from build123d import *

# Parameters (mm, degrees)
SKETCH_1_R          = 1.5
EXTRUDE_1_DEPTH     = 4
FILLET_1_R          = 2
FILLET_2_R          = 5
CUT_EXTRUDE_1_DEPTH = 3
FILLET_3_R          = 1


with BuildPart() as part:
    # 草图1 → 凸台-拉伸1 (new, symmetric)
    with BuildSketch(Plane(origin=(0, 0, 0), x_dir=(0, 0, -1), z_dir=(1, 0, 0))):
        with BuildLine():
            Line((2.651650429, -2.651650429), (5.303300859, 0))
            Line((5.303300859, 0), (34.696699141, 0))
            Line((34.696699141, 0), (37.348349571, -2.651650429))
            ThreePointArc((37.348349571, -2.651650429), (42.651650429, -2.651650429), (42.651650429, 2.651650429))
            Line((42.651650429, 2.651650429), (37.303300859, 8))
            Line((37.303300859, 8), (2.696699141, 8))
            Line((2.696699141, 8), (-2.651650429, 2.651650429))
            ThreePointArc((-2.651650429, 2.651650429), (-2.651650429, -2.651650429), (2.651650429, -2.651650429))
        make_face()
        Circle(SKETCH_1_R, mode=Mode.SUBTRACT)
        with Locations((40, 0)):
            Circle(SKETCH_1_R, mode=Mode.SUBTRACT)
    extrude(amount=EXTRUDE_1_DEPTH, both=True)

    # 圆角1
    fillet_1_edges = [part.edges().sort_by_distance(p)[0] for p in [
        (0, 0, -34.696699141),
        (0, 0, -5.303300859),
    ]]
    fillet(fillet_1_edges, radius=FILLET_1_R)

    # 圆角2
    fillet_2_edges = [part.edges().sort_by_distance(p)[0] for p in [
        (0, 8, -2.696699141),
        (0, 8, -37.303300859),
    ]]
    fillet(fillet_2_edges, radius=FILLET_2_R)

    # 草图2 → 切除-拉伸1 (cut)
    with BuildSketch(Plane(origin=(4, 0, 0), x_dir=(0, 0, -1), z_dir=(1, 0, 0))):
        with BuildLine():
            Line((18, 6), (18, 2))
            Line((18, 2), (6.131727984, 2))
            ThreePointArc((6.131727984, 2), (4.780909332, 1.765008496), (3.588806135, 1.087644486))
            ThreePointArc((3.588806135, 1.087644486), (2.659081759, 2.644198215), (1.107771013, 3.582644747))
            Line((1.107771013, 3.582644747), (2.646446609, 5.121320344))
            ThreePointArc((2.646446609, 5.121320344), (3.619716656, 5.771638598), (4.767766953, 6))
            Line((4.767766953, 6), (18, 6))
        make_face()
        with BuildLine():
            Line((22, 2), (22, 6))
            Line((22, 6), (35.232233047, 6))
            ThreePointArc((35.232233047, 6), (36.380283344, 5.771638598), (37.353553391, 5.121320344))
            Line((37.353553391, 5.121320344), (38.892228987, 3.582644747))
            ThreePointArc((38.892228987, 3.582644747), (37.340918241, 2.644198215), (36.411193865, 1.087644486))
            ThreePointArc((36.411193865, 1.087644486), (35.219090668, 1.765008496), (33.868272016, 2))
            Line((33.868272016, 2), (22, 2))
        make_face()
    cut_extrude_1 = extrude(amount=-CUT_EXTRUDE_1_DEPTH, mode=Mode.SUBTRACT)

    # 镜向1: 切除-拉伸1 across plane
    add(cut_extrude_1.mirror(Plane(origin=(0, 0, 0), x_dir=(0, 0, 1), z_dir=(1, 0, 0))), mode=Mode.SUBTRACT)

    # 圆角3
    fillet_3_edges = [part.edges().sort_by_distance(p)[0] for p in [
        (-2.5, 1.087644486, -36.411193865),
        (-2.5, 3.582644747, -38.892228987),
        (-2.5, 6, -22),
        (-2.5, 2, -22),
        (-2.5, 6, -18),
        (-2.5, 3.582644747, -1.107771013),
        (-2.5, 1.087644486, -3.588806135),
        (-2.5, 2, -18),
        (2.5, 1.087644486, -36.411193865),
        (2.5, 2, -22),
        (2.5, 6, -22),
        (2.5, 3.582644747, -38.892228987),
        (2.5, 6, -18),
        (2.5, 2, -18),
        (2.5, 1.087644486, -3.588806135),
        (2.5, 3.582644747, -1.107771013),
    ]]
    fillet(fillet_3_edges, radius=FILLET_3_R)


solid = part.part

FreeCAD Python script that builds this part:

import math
import FreeCAD as App
import Part
import Sketcher
from FreeCAD import Vector


def edges_at(feature, points):
    """Names of the edges that pass closest to the given points."""
    edges = feature.Shape.Edges
    near = lambda p: min(range(len(edges)), key=lambda i: edges[i].distToShape(Part.Vertex(*p))[0])
    return sorted({f"Edge{near(p) + 1}" for p in points})

doc = App.newDocument("Part")
body = doc.addObject("PartDesign::Body", "Body")

sketch1 = doc.addObject("Sketcher::SketchObject", "Sketch")
body.addObject(sketch1)
sketch1.AttachmentSupport = (doc.YZ_Plane, [""])
sketch1.MapMode = "FlatFace"
sketch1.addGeometry([
    Part.LineSegment(Vector(-2.65165, -2.65165, 0), Vector(0, -5.303301, 0)),
    Part.LineSegment(Vector(0, -5.303301, 0), Vector(0, -34.696699, 0)),
    Part.LineSegment(Vector(0, -34.696699, 0), Vector(-2.65165, -37.34835, 0)),
    Part.ArcOfCircle(Part.Circle(Vector(0, -40, 0), Vector(0, 0, 1), 3.75), math.radians(135), math.radians(315)),
    Part.LineSegment(Vector(2.65165, -42.65165, 0), Vector(8, -37.303301, 0)),
    Part.LineSegment(Vector(8, -37.303301, 0), Vector(8, -2.696699, 0)),
    Part.LineSegment(Vector(8, -2.696699, 0), Vector(2.65165, 2.65165, 0)),
    Part.ArcOfCircle(Part.Circle(Vector(0, 0, 0), Vector(0, 0, 1), 3.75), math.radians(45), math.radians(225)),
    Part.Circle(Vector(0, 0, 0), Vector(0, 0, 1), 1.5),
    Part.Circle(Vector(0, -40, 0), Vector(0, 0, 1), 1.5),
], False)
sketch1.addConstraint([
    Sketcher.Constraint("Coincident", 0, 2, 1, 1),
    Sketcher.Constraint("Coincident", 1, 2, 2, 1),
    Sketcher.Constraint("Tangent", 2, 2, 3, 1),
    Sketcher.Constraint("Tangent", 3, 2, 4, 1),
    Sketcher.Constraint("Coincident", 4, 2, 5, 1),
    Sketcher.Constraint("Coincident", 5, 2, 6, 1),
    Sketcher.Constraint("Tangent", 6, 2, 7, 1),
    Sketcher.Constraint("Tangent", 7, 2, 0, 1),
    Sketcher.Constraint("Vertical", 1),
    Sketcher.Constraint("Vertical", 5),
    Sketcher.Constraint("Coincident", 7, 3, -1, 1),
    Sketcher.Constraint("Coincident", 8, 3, -1, 1),
    Sketcher.Constraint("Coincident", 9, 3, 3, 3),
    Sketcher.Constraint("Equal", 3, 7),
    Sketcher.Constraint("Equal", 8, 9),
    Sketcher.Constraint("PointOnObject", 3, 3, -2),
    Sketcher.Constraint("PointOnObject", 0, 2, -2),
    Sketcher.Constraint("Perpendicular", 0, 2),
    Sketcher.Constraint("Parallel", 2, 4),
    Sketcher.Constraint("Perpendicular", 4, 6),
    Sketcher.Constraint("Vertical", 3, 2, 6, 2),
    Sketcher.Constraint("Diameter", 8, 3.0),
    Sketcher.Constraint("Radius", 3, 3.75),
    Sketcher.Constraint("DistanceY", 3, 3, -1, 1, 40.0),
    Sketcher.Constraint("DistanceX", -1, 1, 4, 2, 8.0),
])
pad1 = doc.addObject("PartDesign::Pad", "Pad")
body.addObject(pad1)
pad1.Profile = sketch1
pad1.Length = 8
pad1.Midplane = True
doc.recompute()

fillet = doc.addObject("PartDesign::Fillet", "Fillet")
body.addObject(fillet)
fillet.Base = (pad1, edges_at(pad1, [(0, 0, -34.697), (0, 0, -5.303)]))
fillet.Radius = 2
doc.recompute()

fillet2 = doc.addObject("PartDesign::Fillet", "Fillet001")
body.addObject(fillet2)
fillet2.Base = (fillet, edges_at(fillet, [(0, 8, -2.697), (0, 8, -37.303)]))
fillet2.Radius = 5

sketch2 = doc.addObject("Sketcher::SketchObject", "Sketch001")
body.addObject(sketch2)
sketch2.AttachmentSupport = (doc.YZ_Plane, [""])
sketch2.MapMode = "FlatFace"
sketch2.AttachmentOffset = App.Placement(Vector(0, 0, 4), App.Rotation())
sketch2.addGeometry([
    Part.LineSegment(Vector(2, -18, 0), Vector(6, -18, 0)),
    Part.LineSegment(Vector(6, -18, 0), Vector(6, -4.767767, 0)),
    Part.ArcOfCircle(Part.Circle(Vector(3, -4.767767, 0), Vector(0, 0, 1), 3), math.radians(0), math.radians(45)),
    Part.LineSegment(Vector(5.12132, -2.646447, 0), Vector(3.582645, -1.107771, 0)),
    Part.ArcOfCircle(Part.Circle(Vector(0, 0, 0), Vector(0, 0, 1), 3.75), math.radians(-73.139737), math.radians(-17.181861)),
    Part.ArcOfCircle(Part.Circle(Vector(-2, -6.131728, 0), Vector(0, 0, 1), 4), math.radians(0), math.radians(39.474183)),
    Part.LineSegment(Vector(2, -6.131728, 0), Vector(2, -18, 0)),
    Part.LineSegment(Vector(6, -22, 0), Vector(2, -22, 0)),
    Part.LineSegment(Vector(2, -22, 0), Vector(2, -33.868272, 0)),
    Part.ArcOfCircle(Part.Circle(Vector(-2, -33.868272, 0), Vector(0, 0, 1), 4), math.radians(-39.474183), math.radians(0)),
    Part.ArcOfCircle(Part.Circle(Vector(0, -40, 0), Vector(0, 0, 1), 3.75), math.radians(17.181861), math.radians(73.139737)),
    Part.LineSegment(Vector(3.582645, -38.892229, 0), Vector(5.12132, -37.353553, 0)),
    Part.ArcOfCircle(Part.Circle(Vector(3, -35.232233, 0), Vector(0, 0, 1), 3), math.radians(-45), math.radians(0)),
    Part.LineSegment(Vector(6, -35.232233, 0), Vector(6, -22, 0)),
], False)
sketch2.addConstraint([
    Sketcher.Constraint("Coincident", 0, 2, 1, 1),
    Sketcher.Constraint("Tangent", 1, 2, 2, 1),
    Sketcher.Constraint("Tangent", 2, 2, 3, 1),
    Sketcher.Constraint("Coincident", 3, 2, 4, 2),
    Sketcher.Constraint("Coincident", 4, 1, 5, 2),
    Sketcher.Constraint("Tangent", 5, 1, 6, 1),
    Sketcher.Constraint("Coincident", 6, 2, 0, 1),
    Sketcher.Constraint("Coincident", 7, 2, 8, 1),
    Sketcher.Constraint("Tangent", 8, 2, 9, 2),
    Sketcher.Constraint("Coincident", 9, 1, 10, 2),
    Sketcher.Constraint("Coincident", 10, 1, 11, 1),
    Sketcher.Constraint("Tangent", 11, 2, 12, 1),
    Sketcher.Constraint("Tangent", 12, 2, 13, 1),
    Sketcher.Constraint("Coincident", 13, 2, 7, 1),
    Sketcher.Constraint("Horizontal", 0),
    Sketcher.Constraint("Vertical", 1),
    Sketcher.Constraint("Vertical", 6),
    Sketcher.Constraint("Horizontal", 7),
    Sketcher.Constraint("Vertical", 8),
    Sketcher.Constraint("Vertical", 13),
    Sketcher.Constraint("Coincident", 4, 3, -1, 1),
    Sketcher.Constraint("Equal", 5, 9),
    Sketcher.Constraint("Equal", 4, 10),
    Sketcher.Constraint("Equal", 2, 12),
    Sketcher.Constraint("PointOnObject", 10, 3, -2),
    Sketcher.Constraint("Perpendicular", 3, 11),
    Sketcher.Constraint("Vertical", 5, 3, 9, 3),
    Sketcher.Constraint("Vertical", 2, 3, 12, 3),
    Sketcher.Constraint("Vertical", 4, 1, 9, 1),
    Sketcher.Constraint("Vertical", 3, 2, 10, 1),
    Sketcher.Constraint("Vertical", 2, 2, 11, 2),
    Sketcher.Constraint("Equal", 6, 8),
    Sketcher.Constraint("Radius", 2, 3.0),
    Sketcher.Constraint("Radius", 5, 4.0),
    Sketcher.Constraint("DistanceX", 0, 1, 0, 2, 4.0),
    Sketcher.Constraint("Radius", 4, 3.75),
    Sketcher.Constraint("DistanceX", -1, 1, 2, 3, 3.0),
    Sketcher.Constraint("DistanceY", 10, 3, -1, 1, 40.0),
    Sketcher.Constraint("DistanceY", 0, 2, -1, 1, 18.0),
    Sketcher.Constraint("DistanceX", 4, 1, 3, 2, 2.495),
    Sketcher.Constraint("DistanceY", 1, 1, 1, 2, 13.232233),
])
pocket1 = doc.addObject("PartDesign::Pocket", "Pocket")
body.addObject(pocket1)
pocket1.Profile = sketch2
pocket1.Length = 3
doc.recompute()

mirrored = doc.addObject("PartDesign::Mirrored", "Mirrored")
body.addObject(mirrored)
mirrored.Originals = [pocket1]
mirrored.MirrorPlane = (doc.YZ_Plane, [""])
body.Tip = mirrored
doc.recompute()

fillet3 = doc.addObject("PartDesign::Fillet", "Fillet002")
body.addObject(fillet3)
fillet3.Base = (mirrored, edges_at(mirrored, [
    (-2.5, 1.088, -36.411),
    (-2.5, 3.583, -38.892),
    (-2.5, 6, -22),
    (-2.5, 2, -22),
    (-2.5, 6, -18),
    (-2.5, 3.583, -1.108),
    (-2.5, 1.088, -3.589),
    (-2.5, 2, -18),
    (2.5, 1.088, -36.411),
    (2.5, 2, -22),
    (2.5, 6, -22),
    (2.5, 3.583, -38.892),
    (2.5, 6, -18),
    (2.5, 2, -18),
    (2.5, 1.088, -3.589),
    (2.5, 3.583, -1.108),
]))
fillet3.Radius = 1

doc.recompute()
